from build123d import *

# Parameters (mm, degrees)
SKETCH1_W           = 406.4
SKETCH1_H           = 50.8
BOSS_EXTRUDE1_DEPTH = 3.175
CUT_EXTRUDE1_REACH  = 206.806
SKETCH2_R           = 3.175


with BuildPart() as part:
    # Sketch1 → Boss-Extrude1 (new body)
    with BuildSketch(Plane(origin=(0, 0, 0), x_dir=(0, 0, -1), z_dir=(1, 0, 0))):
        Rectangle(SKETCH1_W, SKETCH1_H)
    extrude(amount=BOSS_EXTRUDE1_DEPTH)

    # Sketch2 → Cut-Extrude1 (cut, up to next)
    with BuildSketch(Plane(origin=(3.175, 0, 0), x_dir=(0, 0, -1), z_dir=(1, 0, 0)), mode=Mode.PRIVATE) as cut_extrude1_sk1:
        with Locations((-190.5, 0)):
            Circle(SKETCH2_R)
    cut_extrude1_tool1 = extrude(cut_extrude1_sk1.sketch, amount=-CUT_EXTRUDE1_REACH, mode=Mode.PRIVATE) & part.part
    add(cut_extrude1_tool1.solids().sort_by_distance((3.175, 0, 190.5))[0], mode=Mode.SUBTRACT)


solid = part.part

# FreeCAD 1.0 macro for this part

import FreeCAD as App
import Part
import Sketcher
from FreeCAD import Vector
Q = App.Units.Quantity


def add_polygon(sketch, points):
    """Adds a closed chain of lines whose ends are joined by coincident constraints."""
    first, n = sketch.GeometryCount, len(points)
    for a, b in zip(points, points[1:] + points[:1]):
        sketch.addGeometry(Part.LineSegment(App.Vector(*a, 0), App.Vector(*b, 0)), False)
    for i in range(n):
        sketch.addConstraint(Sketcher.Constraint("Coincident", first + i, 2, first + (i + 1) % n, 1))

doc = App.newDocument("Part")
body = doc.addObject("PartDesign::Body", "Body")

sketch1 = body.newObject("Sketcher::SketchObject", "Sketch")
sketch1.AttachmentSupport = (doc.getObject("YZ_Plane"), [""])
sketch1.MapMode = "FlatFace"
add_polygon(sketch1, [(25, 203), (-25, 203), (-25, -203), (25, -203)])
sketch1.addConstraint(Sketcher.Constraint("Horizontal", 0))
sketch1.addConstraint(Sketcher.Constraint("Vertical", 1))
sketch1.addConstraint(Sketcher.Constraint("Horizontal", 2))
sketch1.addConstraint(Sketcher.Constraint("Vertical", 3))
sketch1.addConstraint(Sketcher.Constraint("Symmetric", 0, 2, 2, 2, -1, 1))
sketch1.addConstraint(Sketcher.Constraint("DistanceX", 0, 2, 0, 1, Q("2 in")))
sketch1.addConstraint(Sketcher.Constraint("DistanceY", 1, 2, 1, 1, Q("16 in")))
pad1 = body.newObject("PartDesign::Pad", "Pad")
pad1.Profile = sketch1
pad1.Length = Q("0.125 in")

sketch2 = body.newObject("Sketcher::SketchObject", "Sketch001")
sketch2.AttachmentSupport = (doc.getObject("YZ_Plane"), [""])
sketch2.MapMode = "FlatFace"
sketch2.AttachmentOffset = App.Placement(Vector(0, 0, 0.125 * 25.4), App.Rotation())
sketch2.addGeometry(Part.Circle(Vector(0, 190.5, 0), Vector(0, 0, 1), 3.2), False)
sketch2.addConstraint(Sketcher.Constraint("PointOnObject", 0, 3, -2))
sketch2.addConstraint(Sketcher.Constraint("Diameter", 0, Q("0.25 in")))
sketch2.addConstraint(Sketcher.Constraint("DistanceY", -1, 1, 0, 3, Q("7.5 in")))
pocket1 = body.newObject("PartDesign::Pocket", "Pocket")
pocket1.Profile = sketch2
pocket1.Type = "UpToFirst"

doc.recompute()
